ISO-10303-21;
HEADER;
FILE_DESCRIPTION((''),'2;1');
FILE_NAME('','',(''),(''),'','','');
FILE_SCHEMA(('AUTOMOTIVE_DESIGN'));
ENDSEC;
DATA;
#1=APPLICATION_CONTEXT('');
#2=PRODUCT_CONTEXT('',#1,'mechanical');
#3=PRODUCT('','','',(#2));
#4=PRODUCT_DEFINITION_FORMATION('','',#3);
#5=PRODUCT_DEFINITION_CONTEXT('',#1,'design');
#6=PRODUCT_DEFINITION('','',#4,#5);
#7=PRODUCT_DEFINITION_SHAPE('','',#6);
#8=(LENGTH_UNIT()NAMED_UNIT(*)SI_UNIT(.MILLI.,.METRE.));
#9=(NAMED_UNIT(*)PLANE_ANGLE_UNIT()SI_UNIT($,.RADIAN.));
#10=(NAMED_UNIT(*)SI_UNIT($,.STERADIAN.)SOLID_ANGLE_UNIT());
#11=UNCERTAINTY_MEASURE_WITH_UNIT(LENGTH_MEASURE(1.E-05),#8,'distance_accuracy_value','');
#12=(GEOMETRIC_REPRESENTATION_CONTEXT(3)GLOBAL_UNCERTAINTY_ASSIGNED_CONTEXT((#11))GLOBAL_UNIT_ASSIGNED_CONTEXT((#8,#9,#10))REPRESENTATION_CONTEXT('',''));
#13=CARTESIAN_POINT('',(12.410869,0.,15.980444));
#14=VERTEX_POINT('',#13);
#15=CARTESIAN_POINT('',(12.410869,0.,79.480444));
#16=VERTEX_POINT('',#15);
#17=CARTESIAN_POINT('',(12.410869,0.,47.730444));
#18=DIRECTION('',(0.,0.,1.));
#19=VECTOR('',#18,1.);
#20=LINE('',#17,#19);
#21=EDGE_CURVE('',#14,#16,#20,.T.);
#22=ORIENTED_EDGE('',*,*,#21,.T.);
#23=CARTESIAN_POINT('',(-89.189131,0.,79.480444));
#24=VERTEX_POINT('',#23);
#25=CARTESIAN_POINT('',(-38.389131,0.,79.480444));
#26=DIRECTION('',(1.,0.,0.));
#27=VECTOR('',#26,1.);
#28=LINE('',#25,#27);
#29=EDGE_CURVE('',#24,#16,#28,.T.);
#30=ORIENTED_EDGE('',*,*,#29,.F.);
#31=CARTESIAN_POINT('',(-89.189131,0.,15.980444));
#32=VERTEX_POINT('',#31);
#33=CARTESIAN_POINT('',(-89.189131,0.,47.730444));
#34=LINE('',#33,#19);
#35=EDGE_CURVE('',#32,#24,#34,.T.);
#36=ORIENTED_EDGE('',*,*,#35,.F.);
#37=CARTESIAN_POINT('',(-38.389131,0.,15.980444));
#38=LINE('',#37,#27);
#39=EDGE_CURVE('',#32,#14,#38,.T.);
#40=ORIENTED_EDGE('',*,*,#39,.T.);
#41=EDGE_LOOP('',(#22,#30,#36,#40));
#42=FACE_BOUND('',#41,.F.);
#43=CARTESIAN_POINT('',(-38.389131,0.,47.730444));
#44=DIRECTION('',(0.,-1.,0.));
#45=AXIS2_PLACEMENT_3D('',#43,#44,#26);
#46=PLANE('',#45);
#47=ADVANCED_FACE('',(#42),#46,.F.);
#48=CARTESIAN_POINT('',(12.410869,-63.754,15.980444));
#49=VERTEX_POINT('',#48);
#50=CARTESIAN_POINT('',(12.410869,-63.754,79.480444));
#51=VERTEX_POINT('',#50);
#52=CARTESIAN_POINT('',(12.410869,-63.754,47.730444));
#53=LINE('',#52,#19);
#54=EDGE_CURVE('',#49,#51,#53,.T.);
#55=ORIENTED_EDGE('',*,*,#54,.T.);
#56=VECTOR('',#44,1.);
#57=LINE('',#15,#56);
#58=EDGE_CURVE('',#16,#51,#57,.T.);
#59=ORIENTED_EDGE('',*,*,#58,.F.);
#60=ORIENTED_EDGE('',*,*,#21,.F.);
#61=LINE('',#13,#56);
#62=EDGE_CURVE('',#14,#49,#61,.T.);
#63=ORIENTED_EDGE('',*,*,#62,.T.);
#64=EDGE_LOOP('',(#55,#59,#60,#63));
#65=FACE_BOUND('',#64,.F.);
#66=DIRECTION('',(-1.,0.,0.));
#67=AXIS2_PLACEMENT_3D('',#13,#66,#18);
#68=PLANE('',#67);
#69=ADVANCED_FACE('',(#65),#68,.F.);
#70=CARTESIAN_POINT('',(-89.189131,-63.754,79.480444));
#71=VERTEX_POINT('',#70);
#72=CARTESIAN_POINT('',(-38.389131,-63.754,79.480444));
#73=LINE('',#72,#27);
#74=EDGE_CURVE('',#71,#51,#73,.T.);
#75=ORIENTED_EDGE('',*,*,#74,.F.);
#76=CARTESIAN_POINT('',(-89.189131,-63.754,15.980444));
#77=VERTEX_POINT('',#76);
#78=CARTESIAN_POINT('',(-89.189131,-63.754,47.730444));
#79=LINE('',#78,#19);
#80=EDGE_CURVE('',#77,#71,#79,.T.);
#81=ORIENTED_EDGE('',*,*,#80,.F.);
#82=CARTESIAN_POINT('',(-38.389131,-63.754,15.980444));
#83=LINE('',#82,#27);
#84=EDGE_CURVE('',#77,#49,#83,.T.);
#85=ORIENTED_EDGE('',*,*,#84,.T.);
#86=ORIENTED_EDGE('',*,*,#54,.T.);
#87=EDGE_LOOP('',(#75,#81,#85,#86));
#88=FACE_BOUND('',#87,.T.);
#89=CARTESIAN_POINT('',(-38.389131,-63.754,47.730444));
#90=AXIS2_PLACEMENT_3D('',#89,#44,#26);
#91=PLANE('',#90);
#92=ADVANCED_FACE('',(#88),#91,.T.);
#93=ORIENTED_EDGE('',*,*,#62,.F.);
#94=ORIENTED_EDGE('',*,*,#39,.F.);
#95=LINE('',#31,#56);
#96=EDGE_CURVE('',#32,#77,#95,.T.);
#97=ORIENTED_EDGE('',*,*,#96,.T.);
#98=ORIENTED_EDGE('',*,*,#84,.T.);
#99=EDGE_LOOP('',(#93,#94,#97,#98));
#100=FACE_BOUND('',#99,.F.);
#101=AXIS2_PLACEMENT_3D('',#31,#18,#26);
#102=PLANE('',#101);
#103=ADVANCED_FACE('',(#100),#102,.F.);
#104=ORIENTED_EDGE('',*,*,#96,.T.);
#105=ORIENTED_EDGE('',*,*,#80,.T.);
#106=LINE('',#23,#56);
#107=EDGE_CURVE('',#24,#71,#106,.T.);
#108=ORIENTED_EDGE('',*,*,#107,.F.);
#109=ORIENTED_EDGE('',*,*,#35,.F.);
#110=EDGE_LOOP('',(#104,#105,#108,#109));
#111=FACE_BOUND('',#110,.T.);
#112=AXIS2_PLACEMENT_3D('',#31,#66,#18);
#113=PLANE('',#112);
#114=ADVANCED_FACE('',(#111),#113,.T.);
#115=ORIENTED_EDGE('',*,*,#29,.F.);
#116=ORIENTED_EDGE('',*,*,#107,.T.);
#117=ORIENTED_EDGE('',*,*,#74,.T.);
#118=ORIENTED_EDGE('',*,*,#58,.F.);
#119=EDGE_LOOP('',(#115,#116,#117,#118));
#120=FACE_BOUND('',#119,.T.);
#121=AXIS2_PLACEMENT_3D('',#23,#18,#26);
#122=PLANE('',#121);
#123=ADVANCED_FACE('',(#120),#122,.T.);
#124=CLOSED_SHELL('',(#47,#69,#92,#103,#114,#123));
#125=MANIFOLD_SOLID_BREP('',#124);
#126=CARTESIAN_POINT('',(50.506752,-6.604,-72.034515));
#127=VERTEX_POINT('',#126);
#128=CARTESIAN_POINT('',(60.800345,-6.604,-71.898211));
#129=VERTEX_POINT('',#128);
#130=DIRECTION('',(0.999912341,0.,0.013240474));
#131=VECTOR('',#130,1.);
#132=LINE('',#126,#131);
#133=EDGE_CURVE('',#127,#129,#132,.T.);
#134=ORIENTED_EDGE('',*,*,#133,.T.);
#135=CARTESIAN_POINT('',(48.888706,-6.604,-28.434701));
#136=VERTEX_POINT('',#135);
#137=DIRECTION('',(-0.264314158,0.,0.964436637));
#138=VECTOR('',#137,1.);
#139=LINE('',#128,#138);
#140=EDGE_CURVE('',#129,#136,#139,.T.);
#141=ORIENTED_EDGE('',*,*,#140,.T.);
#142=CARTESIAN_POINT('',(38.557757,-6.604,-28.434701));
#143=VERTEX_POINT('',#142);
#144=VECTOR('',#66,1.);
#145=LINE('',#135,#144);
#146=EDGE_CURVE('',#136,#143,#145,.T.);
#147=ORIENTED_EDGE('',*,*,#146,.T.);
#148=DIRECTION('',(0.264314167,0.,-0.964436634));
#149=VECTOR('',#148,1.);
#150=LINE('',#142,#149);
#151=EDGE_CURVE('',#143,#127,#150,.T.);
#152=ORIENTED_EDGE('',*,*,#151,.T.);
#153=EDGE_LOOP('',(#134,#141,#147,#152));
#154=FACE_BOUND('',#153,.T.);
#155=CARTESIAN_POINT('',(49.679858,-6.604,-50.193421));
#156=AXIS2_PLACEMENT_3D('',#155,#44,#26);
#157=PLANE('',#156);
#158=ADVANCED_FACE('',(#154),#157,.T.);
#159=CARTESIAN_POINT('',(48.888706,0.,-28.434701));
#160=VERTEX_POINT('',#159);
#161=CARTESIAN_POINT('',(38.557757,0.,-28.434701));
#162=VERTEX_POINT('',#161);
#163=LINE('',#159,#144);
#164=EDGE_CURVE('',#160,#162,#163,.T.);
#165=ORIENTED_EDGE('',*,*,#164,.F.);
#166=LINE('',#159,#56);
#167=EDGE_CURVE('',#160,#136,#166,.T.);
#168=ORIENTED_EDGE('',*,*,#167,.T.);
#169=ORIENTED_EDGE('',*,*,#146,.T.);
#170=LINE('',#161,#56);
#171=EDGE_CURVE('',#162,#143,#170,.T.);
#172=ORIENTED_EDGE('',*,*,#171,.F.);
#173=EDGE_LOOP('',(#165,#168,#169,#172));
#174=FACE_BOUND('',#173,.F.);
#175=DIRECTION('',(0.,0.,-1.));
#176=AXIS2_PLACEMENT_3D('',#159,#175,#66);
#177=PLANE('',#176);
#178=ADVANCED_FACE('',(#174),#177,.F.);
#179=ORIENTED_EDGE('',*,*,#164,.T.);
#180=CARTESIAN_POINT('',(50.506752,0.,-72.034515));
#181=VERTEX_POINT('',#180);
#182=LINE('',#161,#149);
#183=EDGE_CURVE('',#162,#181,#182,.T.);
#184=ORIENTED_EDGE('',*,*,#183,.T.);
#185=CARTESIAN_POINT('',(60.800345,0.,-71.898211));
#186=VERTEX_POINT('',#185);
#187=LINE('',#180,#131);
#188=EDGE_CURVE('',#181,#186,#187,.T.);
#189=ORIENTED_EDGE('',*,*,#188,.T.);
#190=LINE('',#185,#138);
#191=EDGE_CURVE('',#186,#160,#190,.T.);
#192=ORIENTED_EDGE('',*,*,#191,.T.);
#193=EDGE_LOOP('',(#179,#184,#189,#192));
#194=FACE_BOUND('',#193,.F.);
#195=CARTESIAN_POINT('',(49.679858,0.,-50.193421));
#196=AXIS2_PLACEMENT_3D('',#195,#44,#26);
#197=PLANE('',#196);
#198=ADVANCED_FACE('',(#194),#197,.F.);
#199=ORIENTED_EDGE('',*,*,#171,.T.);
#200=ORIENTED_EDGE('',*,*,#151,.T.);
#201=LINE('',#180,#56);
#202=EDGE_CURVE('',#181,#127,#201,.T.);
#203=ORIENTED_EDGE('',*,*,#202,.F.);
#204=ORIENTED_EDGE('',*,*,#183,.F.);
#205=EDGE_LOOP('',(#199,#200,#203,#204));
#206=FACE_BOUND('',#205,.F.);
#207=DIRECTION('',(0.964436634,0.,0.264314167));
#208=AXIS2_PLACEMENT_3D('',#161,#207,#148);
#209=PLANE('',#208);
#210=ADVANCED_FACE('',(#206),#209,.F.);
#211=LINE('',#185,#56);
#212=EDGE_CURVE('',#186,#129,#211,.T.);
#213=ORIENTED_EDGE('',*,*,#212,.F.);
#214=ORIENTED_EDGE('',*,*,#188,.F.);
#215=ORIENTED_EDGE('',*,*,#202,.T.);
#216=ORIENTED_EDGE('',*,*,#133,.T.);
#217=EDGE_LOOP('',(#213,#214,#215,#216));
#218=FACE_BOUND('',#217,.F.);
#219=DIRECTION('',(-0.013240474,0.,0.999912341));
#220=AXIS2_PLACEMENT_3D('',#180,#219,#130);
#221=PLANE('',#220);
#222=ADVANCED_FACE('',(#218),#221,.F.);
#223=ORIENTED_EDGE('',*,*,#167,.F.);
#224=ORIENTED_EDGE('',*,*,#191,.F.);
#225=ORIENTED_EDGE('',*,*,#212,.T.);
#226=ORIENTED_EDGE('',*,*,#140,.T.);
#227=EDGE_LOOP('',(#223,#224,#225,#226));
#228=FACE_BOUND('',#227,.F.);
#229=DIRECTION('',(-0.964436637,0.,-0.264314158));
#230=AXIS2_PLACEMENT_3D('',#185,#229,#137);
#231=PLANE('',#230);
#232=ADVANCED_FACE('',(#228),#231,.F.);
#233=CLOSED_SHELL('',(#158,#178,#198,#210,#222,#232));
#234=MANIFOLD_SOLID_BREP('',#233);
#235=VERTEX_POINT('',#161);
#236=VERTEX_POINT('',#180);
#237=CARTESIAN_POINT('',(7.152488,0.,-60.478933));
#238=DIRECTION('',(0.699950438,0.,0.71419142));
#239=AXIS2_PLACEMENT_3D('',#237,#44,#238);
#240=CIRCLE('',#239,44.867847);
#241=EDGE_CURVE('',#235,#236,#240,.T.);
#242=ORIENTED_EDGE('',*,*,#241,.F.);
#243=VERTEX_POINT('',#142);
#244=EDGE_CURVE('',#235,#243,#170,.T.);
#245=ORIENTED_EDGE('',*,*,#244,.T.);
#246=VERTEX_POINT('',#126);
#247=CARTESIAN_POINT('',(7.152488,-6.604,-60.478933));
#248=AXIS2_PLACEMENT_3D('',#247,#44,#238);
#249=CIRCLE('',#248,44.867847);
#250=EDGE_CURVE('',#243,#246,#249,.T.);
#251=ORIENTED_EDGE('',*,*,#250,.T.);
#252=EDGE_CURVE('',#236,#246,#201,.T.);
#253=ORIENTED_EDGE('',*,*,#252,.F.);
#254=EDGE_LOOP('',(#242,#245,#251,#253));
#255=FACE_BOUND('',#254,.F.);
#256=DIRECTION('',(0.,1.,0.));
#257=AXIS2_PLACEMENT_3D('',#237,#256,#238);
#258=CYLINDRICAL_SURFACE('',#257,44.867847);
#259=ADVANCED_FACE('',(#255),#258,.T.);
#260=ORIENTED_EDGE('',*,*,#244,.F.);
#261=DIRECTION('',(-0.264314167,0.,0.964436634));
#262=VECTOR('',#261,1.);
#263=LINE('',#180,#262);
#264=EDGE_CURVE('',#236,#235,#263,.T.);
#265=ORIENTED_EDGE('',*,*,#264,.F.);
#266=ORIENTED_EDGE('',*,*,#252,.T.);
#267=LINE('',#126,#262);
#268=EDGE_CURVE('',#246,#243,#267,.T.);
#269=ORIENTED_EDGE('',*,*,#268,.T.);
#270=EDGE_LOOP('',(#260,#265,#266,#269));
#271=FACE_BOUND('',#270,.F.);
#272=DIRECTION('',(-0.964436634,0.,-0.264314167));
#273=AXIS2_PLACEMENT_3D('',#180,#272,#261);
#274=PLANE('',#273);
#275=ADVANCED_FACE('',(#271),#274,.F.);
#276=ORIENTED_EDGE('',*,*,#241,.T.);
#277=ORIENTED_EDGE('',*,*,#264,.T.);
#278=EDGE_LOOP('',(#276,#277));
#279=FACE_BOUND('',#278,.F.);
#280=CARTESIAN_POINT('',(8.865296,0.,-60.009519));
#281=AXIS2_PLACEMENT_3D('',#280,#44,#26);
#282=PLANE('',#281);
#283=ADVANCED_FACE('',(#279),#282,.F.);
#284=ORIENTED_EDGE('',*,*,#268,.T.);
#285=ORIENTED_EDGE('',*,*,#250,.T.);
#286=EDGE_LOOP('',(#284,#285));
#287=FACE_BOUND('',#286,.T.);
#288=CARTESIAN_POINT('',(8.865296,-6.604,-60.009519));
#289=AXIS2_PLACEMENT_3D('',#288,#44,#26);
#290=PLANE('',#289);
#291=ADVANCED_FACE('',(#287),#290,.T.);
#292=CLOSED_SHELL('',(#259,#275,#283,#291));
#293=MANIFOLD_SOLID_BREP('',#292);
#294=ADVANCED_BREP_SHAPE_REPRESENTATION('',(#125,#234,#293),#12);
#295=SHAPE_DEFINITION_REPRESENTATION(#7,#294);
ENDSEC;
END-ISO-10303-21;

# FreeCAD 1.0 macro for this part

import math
import FreeCAD as App
import Part
import Sketcher
Q = App.Units.Quantity


def add_polygon(sketch, points):
    """Adds a closed chain of lines whose ends are joined by coincident constraints."""
    first, n = sketch.GeometryCount, len(points)
    for a, b in zip(points, points[1:] + points[:1]):
        sketch.addGeometry(Part.LineSegment(App.Vector(*a, 0), App.Vector(*b, 0)), False)
    for i in range(n):
        sketch.addConstraint(Sketcher.Constraint("Coincident", first + i, 2, first + (i + 1) % n, 1))

doc = App.newDocument("Part")
body = doc.addObject("PartDesign::Body", "Body")

# Sketch on XZ plane
sketch1 = body.newObject("Sketcher::SketchObject", "Sketch")
sketch1.AttachmentSupport = (doc.getObject("XZ_Plane"), [""])
sketch1.MapMode = "FlatFace"
add_polygon(sketch1, [(-89, 79), (-89, 16), (12, 16), (12, 79)])  # lines 0-3
sketch1.addConstraint(Sketcher.Constraint("Vertical", 0))
sketch1.addConstraint(Sketcher.Constraint("Horizontal", 1))
sketch1.addConstraint(Sketcher.Constraint("Vertical", 2))
sketch1.addConstraint(Sketcher.Constraint("Horizontal", 3))
sketch1.addConstraint(Sketcher.Constraint("DistanceX", 1, 1, 1, 2, Q("4 in")))
sketch1.addConstraint(Sketcher.Constraint("DistanceY", 0, 2, 0, 1, Q("2.5 in")))
sketch1.addConstraint(Sketcher.Constraint("DistanceX", 0, 2, -1, 1, Q("89.189131 mm")))
sketch1.addConstraint(Sketcher.Constraint("DistanceY", -1, 1, 0, 2, Q("15.980444 mm")))
pad1 = body.newObject("PartDesign::Pad", "Pad")
pad1.Profile = sketch1
pad1.Length = Q("2.51 in")
body2 = doc.addObject("PartDesign::Body", "Body001")

# Sketch on XZ plane
sketch2 = body2.newObject("Sketcher::SketchObject", "Sketch001")
sketch2.AttachmentSupport = (doc.getObject("XZ_Plane001"), [""])
sketch2.MapMode = "FlatFace"
sketch2.addGeometry(Part.LineSegment(App.Vector(51, -72, 0), App.Vector(39, -28, 0)), False)
sketch2.addGeometry(Part.ArcOfCircle(Part.Circle(App.Vector(7, -60, 0), App.Vector(0, 0, 1), 45), math.radians(46), math.radians(345)), False)
sketch2.addConstraint(Sketcher.Constraint("Coincident", 0, 1, 1, 2))
sketch2.addConstraint(Sketcher.Constraint("Coincident", 1, 1, 0, 2))
sketch2.addConstraint(Sketcher.Constraint("Radius", 1, Q("44.867847 mm")))
sketch2.addConstraint(Sketcher.Constraint("DistanceY", 1, 1, -1, 1, Q("28.434701 mm")))
sketch2.addConstraint(Sketcher.Constraint("DistanceX", 1, 3, 1, 1, Q("31.405269 mm")))
sketch2.addConstraint(Sketcher.Constraint("Distance", 0, Q("45.207547 mm")))
sketch2.addConstraint(Sketcher.Constraint("DistanceX", -1, 1, 1, 3, Q("7.152488 mm")))
pad2 = body2.newObject("PartDesign::Pad", "Pad001")
pad2.Profile = sketch2
pad2.Length = Q("0.26 in")
body3 = doc.addObject("PartDesign::Body", "Body002")

# Sketch on XZ plane
sketch3 = body3.newObject("Sketcher::SketchObject", "Sketch002")
sketch3.AttachmentSupport = (doc.getObject("XZ_Plane002"), [""])
sketch3.MapMode = "FlatFace"
add_polygon(sketch3, [(49, -28), (39, -28), (51, -72), (61, -72)])  # lines 0-3
sketch3.addConstraint(Sketcher.Constraint("Horizontal", 0))
sketch3.addConstraint(Sketcher.Constraint("Parallel", 1, 3))
sketch3.addConstraint(Sketcher.Constraint("DistanceX", 0, 2, 0, 1, Q("10.330949 mm")))
sketch3.addConstraint(Sketcher.Constraint("DistanceY", 0, 2, -1, 1, Q("28.434701 mm")))
sketch3.addConstraint(Sketcher.Constraint("DistanceY", 2, 2, -1, 1, Q("71.898211 mm")))
sketch3.addConstraint(Sketcher.Constraint("DistanceX", 3, 2, 2, 2, Q("11.911639 mm")))
sketch3.addConstraint(Sketcher.Constraint("Distance", 1, Q("45.207547 mm")))
sketch3.addConstraint(Sketcher.Constraint("DistanceX", -1, 1, 0, 2, Q("38.557757 mm")))
pad3 = body3.newObject("PartDesign::Pad", "Pad002")
pad3.Profile = sketch3
pad3.Length = Q("0.26 in")

doc.recompute()
